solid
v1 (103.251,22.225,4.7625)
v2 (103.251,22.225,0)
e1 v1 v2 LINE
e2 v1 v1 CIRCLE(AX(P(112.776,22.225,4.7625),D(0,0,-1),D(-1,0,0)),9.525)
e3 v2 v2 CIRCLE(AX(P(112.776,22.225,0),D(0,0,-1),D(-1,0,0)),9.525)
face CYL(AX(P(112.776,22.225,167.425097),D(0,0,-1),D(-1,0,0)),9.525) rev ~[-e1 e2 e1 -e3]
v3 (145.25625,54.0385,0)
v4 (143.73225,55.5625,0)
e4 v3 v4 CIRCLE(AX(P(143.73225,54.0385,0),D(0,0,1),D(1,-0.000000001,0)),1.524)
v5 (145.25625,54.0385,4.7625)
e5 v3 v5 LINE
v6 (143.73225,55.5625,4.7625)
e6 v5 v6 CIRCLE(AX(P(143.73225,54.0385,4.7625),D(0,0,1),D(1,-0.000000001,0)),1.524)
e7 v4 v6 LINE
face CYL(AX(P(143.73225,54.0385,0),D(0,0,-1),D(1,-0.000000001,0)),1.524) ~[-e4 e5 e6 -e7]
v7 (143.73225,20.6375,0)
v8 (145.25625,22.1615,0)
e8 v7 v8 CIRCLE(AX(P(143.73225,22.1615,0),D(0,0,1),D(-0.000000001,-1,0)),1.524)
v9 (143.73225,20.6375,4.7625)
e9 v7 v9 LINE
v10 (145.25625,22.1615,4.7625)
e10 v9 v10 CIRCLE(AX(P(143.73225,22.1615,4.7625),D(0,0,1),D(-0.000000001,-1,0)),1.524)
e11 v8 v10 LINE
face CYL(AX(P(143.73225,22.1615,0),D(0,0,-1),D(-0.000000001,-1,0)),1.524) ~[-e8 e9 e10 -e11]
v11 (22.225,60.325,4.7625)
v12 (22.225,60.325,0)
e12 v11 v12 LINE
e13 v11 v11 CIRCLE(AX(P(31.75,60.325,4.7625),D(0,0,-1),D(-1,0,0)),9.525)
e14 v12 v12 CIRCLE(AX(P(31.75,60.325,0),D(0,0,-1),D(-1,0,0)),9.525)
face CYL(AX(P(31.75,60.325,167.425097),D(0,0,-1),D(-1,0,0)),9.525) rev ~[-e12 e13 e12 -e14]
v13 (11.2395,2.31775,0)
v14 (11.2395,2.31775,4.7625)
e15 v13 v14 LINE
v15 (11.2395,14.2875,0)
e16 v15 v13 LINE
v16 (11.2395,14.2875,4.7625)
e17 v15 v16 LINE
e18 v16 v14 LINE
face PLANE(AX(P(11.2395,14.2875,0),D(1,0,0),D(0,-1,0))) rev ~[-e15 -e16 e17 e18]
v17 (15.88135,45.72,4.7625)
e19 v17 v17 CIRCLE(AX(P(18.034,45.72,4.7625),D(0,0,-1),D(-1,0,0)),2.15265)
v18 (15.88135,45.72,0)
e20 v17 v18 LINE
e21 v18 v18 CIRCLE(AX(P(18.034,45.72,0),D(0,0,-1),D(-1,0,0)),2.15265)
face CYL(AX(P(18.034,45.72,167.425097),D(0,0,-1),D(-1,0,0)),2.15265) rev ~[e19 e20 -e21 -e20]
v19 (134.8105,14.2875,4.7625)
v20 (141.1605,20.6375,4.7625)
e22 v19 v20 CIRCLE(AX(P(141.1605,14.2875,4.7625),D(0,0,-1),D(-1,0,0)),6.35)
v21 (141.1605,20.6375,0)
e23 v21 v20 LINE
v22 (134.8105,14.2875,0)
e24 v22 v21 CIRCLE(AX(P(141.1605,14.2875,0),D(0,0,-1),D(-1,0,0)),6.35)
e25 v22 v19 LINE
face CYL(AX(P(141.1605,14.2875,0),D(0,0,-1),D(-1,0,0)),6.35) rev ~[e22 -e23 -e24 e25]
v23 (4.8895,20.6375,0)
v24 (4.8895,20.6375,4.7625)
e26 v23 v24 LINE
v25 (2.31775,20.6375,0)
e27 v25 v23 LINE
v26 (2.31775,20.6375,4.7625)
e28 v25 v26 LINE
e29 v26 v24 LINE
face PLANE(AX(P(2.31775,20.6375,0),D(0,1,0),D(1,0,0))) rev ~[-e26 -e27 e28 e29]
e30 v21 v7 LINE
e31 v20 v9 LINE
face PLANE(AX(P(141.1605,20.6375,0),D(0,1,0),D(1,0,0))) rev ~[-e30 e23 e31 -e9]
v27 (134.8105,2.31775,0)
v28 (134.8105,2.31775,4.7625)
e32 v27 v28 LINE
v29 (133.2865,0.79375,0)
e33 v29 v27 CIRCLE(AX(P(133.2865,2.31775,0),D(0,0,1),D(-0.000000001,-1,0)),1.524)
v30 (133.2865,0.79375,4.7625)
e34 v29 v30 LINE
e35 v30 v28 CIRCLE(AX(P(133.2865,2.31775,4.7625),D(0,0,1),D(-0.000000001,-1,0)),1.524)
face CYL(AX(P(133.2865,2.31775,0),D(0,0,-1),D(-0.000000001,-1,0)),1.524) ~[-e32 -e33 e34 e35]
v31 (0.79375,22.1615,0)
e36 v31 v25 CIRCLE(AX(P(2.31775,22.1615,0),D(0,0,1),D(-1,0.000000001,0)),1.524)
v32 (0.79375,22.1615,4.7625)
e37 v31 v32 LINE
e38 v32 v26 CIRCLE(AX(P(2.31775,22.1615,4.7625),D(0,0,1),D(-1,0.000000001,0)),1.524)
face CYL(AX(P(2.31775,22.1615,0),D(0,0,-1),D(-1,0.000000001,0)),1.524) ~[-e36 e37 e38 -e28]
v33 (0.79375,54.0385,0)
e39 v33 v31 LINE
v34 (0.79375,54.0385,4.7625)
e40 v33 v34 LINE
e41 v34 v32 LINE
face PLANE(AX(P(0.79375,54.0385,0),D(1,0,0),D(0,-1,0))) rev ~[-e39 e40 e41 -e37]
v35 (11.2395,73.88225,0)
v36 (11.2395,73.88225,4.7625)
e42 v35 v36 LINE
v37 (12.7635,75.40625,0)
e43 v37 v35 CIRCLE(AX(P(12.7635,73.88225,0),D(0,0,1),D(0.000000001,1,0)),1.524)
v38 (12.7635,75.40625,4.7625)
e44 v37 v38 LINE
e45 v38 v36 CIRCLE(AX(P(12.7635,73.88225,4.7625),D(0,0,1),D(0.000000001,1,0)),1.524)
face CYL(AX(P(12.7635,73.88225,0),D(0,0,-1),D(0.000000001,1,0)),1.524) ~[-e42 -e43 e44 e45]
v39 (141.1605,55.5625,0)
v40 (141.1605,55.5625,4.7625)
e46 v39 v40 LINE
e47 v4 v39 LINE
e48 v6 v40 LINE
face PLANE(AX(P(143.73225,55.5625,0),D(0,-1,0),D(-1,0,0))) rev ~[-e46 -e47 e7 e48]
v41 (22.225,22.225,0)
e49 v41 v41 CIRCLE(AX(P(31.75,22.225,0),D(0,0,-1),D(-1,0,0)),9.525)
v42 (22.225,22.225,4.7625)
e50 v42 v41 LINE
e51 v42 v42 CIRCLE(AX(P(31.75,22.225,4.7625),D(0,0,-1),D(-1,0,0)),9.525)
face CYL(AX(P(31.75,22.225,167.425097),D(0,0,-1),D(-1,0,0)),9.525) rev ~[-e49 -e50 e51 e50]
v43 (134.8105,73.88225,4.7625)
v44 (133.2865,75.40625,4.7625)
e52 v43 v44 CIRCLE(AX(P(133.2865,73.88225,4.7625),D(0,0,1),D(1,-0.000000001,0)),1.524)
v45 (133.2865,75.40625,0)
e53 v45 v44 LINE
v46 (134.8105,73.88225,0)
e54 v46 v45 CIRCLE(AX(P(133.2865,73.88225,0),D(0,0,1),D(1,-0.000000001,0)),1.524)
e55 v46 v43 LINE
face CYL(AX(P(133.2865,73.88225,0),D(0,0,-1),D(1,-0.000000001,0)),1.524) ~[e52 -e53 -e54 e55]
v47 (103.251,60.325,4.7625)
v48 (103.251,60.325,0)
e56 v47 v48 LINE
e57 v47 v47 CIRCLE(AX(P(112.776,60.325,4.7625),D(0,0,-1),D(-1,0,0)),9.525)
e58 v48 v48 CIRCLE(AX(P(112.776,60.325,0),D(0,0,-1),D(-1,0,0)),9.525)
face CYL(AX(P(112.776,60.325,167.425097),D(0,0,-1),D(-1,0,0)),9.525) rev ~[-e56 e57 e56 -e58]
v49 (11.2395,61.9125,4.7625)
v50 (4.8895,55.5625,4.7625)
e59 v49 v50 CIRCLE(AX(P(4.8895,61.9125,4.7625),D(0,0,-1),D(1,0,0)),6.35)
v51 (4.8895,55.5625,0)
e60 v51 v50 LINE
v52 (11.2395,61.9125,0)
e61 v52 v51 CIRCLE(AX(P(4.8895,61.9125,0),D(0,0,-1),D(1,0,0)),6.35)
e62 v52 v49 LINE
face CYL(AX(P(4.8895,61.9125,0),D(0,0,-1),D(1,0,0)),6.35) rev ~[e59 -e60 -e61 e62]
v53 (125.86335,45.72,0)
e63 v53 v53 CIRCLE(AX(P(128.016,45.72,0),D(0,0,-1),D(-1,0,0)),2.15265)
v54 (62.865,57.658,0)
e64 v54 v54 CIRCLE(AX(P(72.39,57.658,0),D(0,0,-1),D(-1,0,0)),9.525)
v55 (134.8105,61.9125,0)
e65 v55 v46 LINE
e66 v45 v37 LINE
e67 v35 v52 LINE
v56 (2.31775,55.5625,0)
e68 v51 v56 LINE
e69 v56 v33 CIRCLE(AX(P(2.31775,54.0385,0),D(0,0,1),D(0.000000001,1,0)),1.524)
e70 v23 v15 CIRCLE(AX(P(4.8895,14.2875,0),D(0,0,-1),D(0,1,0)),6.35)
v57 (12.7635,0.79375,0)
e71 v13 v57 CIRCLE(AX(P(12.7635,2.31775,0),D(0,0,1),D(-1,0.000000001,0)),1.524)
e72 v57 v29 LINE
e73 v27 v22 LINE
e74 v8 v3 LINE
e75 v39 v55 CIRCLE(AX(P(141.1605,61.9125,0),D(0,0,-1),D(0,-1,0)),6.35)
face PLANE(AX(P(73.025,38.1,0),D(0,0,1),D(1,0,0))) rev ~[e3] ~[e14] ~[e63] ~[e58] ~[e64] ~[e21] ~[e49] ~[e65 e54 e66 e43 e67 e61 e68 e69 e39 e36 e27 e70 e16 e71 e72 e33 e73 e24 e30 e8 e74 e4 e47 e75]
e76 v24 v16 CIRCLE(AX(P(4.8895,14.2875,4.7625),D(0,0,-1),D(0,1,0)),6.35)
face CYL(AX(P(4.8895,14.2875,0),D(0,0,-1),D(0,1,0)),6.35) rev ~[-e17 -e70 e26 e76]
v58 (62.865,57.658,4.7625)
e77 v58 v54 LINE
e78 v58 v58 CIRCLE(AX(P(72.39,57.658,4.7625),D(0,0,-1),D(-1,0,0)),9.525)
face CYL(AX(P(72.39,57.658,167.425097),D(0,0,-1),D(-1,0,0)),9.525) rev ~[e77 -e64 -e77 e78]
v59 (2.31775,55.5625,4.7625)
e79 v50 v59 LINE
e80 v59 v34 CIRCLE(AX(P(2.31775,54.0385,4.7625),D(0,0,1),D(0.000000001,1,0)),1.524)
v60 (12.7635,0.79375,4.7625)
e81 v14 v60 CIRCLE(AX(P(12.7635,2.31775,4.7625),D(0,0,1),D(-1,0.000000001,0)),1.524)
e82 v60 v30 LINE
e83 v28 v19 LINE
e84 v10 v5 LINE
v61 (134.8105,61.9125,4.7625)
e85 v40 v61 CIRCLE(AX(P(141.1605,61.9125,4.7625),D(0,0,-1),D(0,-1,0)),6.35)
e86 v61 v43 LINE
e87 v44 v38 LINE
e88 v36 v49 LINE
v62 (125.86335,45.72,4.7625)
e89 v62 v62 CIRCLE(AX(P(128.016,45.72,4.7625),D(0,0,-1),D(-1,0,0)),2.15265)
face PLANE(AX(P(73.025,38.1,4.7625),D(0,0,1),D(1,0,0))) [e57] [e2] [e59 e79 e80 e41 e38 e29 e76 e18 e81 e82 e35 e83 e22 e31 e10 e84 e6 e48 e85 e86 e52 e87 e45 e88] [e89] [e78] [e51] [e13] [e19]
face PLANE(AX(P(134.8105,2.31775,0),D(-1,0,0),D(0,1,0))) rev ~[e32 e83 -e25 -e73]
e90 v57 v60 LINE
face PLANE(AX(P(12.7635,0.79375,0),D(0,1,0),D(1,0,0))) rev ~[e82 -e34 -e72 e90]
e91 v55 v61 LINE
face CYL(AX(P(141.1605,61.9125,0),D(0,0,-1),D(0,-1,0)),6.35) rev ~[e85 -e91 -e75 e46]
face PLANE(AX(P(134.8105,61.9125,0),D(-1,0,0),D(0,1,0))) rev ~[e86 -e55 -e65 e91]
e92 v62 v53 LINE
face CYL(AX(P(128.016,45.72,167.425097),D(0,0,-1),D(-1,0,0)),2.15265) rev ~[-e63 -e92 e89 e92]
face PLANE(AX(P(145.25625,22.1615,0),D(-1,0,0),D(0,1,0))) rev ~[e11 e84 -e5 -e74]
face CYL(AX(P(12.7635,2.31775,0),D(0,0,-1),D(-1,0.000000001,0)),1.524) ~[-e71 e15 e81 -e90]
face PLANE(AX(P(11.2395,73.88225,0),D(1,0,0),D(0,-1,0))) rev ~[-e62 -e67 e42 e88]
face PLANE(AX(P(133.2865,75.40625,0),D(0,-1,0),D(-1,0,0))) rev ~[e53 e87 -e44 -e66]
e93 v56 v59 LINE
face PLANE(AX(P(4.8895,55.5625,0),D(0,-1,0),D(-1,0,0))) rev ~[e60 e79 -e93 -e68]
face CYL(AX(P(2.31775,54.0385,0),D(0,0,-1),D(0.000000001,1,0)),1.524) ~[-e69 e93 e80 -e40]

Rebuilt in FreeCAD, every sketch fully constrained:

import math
import FreeCAD as App
import Part
import Sketcher
Q = App.Units.Quantity

doc = App.newDocument("Part")
body = doc.addObject("PartDesign::Body", "Body")

sketch1 = body.newObject("Sketcher::SketchObject", "Sketch")
sketch1.AttachmentSupport = (doc.getObject("XY_Plane"), [""])
sketch1.MapMode = "FlatFace"
sketch1.addGeometry([
    Part.LineSegment(App.Vector(134.8, 61.9, 0), App.Vector(134.8, 73.9, 0)),
    Part.ArcOfCircle(Part.Circle(App.Vector(133.3, 73.9, 0), App.Vector(0, 0, 1), 1.5), math.radians(0), math.radians(90)),
    Part.LineSegment(App.Vector(133.3, 75.4, 0), App.Vector(12.8, 75.4, 0)),
    Part.ArcOfCircle(Part.Circle(App.Vector(12.8, 73.9, 0), App.Vector(0, 0, 1), 1.5), math.radians(90), math.radians(180)),
    Part.LineSegment(App.Vector(11.2, 73.9, 0), App.Vector(11.2, 61.9, 0)),
    Part.ArcOfCircle(Part.Circle(App.Vector(4.9, 61.9, 0), App.Vector(0, 0, 1), 6.3), math.radians(-90), math.radians(0)),
    Part.LineSegment(App.Vector(4.9, 55.6, 0), App.Vector(2.3, 55.6, 0)),
    Part.ArcOfCircle(Part.Circle(App.Vector(2.3, 54, 0), App.Vector(0, 0, 1), 1.5), math.radians(90), math.radians(180)),
    Part.LineSegment(App.Vector(0.8, 54, 0), App.Vector(0.8, 22.2, 0)),
    Part.ArcOfCircle(Part.Circle(App.Vector(2.3, 22.2, 0), App.Vector(0, 0, 1), 1.5), math.radians(180), math.radians(270)),
    Part.LineSegment(App.Vector(2.3, 20.6, 0), App.Vector(4.9, 20.6, 0)),
    Part.ArcOfCircle(Part.Circle(App.Vector(4.9, 14.3, 0), App.Vector(0, 0, 1), 6.3), math.radians(0), math.radians(90)),
    Part.LineSegment(App.Vector(11.2, 14.3, 0), App.Vector(11.2, 2.3, 0)),
    Part.ArcOfCircle(Part.Circle(App.Vector(12.8, 2.3, 0), App.Vector(0, 0, 1), 1.5), math.radians(180), math.radians(270)),
    Part.LineSegment(App.Vector(12.8, 0.8, 0), App.Vector(133.3, 0.8, 0)),
    Part.ArcOfCircle(Part.Circle(App.Vector(133.3, 2.3, 0), App.Vector(0, 0, 1), 1.5), math.radians(-90), math.radians(0)),
    Part.LineSegment(App.Vector(134.8, 2.3, 0), App.Vector(134.8, 14.3, 0)),
    Part.ArcOfCircle(Part.Circle(App.Vector(141.2, 14.3, 0), App.Vector(0, 0, 1), 6.3), math.radians(90), math.radians(180)),
    Part.LineSegment(App.Vector(141.2, 20.6, 0), App.Vector(143.7, 20.6, 0)),
    Part.ArcOfCircle(Part.Circle(App.Vector(143.7, 22.2, 0), App.Vector(0, 0, 1), 1.5), math.radians(-90), math.radians(0)),
    Part.LineSegment(App.Vector(145.3, 22.2, 0), App.Vector(145.3, 54, 0)),
    Part.ArcOfCircle(Part.Circle(App.Vector(143.7, 54, 0), App.Vector(0, 0, 1), 1.5), math.radians(0), math.radians(90)),
    Part.LineSegment(App.Vector(143.7, 55.6, 0), App.Vector(141.2, 55.6, 0)),
    Part.ArcOfCircle(Part.Circle(App.Vector(141.2, 61.9, 0), App.Vector(0, 0, 1), 6.3), math.radians(180), math.radians(270)),
], False)
sketch1.addConstraint([
    Sketcher.Constraint("Tangent", 0, 2, 1, 1),
    Sketcher.Constraint("Tangent", 1, 2, 2, 1),
    Sketcher.Constraint("Tangent", 2, 2, 3, 1),
    Sketcher.Constraint("Tangent", 3, 2, 4, 1),
    Sketcher.Constraint("Tangent", 4, 2, 5, 2),
    Sketcher.Constraint("Tangent", 5, 1, 6, 1),
    Sketcher.Constraint("Tangent", 6, 2, 7, 1),
    Sketcher.Constraint("Tangent", 7, 2, 8, 1),
    Sketcher.Constraint("Tangent", 8, 2, 9, 1),
    Sketcher.Constraint("Tangent", 9, 2, 10, 1),
    Sketcher.Constraint("Tangent", 10, 2, 11, 2),
    Sketcher.Constraint("Tangent", 11, 1, 12, 1),
    Sketcher.Constraint("Tangent", 12, 2, 13, 1),
    Sketcher.Constraint("Tangent", 13, 2, 14, 1),
    Sketcher.Constraint("Tangent", 14, 2, 15, 1),
    Sketcher.Constraint("Tangent", 15, 2, 16, 1),
    Sketcher.Constraint("Tangent", 16, 2, 17, 2),
    Sketcher.Constraint("Tangent", 17, 1, 18, 1),
    Sketcher.Constraint("Tangent", 18, 2, 19, 1),
    Sketcher.Constraint("Tangent", 19, 2, 20, 1),
    Sketcher.Constraint("Tangent", 20, 2, 21, 1),
    Sketcher.Constraint("Tangent", 21, 2, 22, 1),
    Sketcher.Constraint("Tangent", 22, 2, 23, 2),
    Sketcher.Constraint("Tangent", 23, 1, 0, 1),
    Sketcher.Constraint("Vertical", 0),
    Sketcher.Constraint("Horizontal", 2),
    Sketcher.Constraint("Vertical", 4),
    Sketcher.Constraint("Horizontal", 6),
    Sketcher.Constraint("Vertical", 8),
    Sketcher.Constraint("Horizontal", 10),
    Sketcher.Constraint("Vertical", 12),
    Sketcher.Constraint("Horizontal", 14),
    Sketcher.Constraint("Vertical", 16),
    Sketcher.Constraint("Horizontal", 18),
    Sketcher.Constraint("Vertical", 20),
    Sketcher.Constraint("Horizontal", 22),
    Sketcher.Constraint("Equal", 1, 3),
    Sketcher.Constraint("Equal", 3, 7),
    Sketcher.Constraint("Equal", 7, 9),
    Sketcher.Constraint("Equal", 5, 11),
    Sketcher.Constraint("Equal", 9, 13),
    Sketcher.Constraint("Equal", 13, 15),
    Sketcher.Constraint("Equal", 11, 17),
    Sketcher.Constraint("Equal", 15, 19),
    Sketcher.Constraint("Equal", 19, 21),
    Sketcher.Constraint("Equal", 17, 23),
    Sketcher.Constraint("Horizontal", 11, 3, 17, 3),
    Sketcher.Constraint("Horizontal", 7, 3, 21, 3),
    Sketcher.Constraint("Vertical", 5, 3, 11, 3),
    Sketcher.Constraint("Vertical", 1, 3, 15, 3),
    Sketcher.Constraint("Equal", 10, 18),
    Sketcher.Constraint("Equal", 4, 12),
    Sketcher.Constraint("Radius", 1, Q("0.06 in")),
    Sketcher.Constraint("Radius", 5, Q("0.25 in")),
    Sketcher.Constraint("DistanceX", 2, 2, 2, 1, Q("4.745 in")),
    Sketcher.Constraint("DistanceY", 8, 2, 8, 1, Q("1.255 in")),
    Sketcher.Constraint("DistanceY", -1, 1, 5, 3, Q("2.4375 in")),
    Sketcher.Constraint("DistanceY", -1, 1, 1, 2, Q("2.96875 in")),
    Sketcher.Constraint("DistanceX", -1, 1, 7, 2, Q("0.03125 in")),
    Sketcher.Constraint("DistanceX", -1, 1, 19, 2, Q("5.71875 in")),
])
pad1 = body.newObject("PartDesign::Pad", "Pad")
pad1.Profile = sketch1
pad1.Length = Q("0.1875 in")

sketch2 = body.newObject("Sketcher::SketchObject", "Sketch001")
sketch2.AttachmentSupport = (doc.getObject("XY_Plane"), [""])
sketch2.MapMode = "FlatFace"
sketch2.AttachmentOffset = App.Placement(App.Vector(0, 0, 0.1875 * 25.4), App.Rotation())
sketch2.addGeometry([
    Part.Circle(App.Vector(32, 60, 0), App.Vector(0, 0, 1), 10),
    Part.Circle(App.Vector(72, 58, 0), App.Vector(0, 0, 1), 10),
    Part.Circle(App.Vector(113, 60, 0), App.Vector(0, 0, 1), 10),
    Part.Circle(App.Vector(113, 22, 0), App.Vector(0, 0, 1), 10),
    Part.Circle(App.Vector(32, 22, 0), App.Vector(0, 0, 1), 10),
], False)
sketch2.addConstraint([
    Sketcher.Constraint("Equal", 0, 1),
    Sketcher.Constraint("Equal", 1, 2),
    Sketcher.Constraint("Equal", 2, 3),
    Sketcher.Constraint("Equal", 3, 4),
    Sketcher.Constraint("Horizontal", 0, 3, 2, 3),
    Sketcher.Constraint("Horizontal", 3, 3, 4, 3),
    Sketcher.Constraint("Vertical", 2, 3, 3, 3),
    Sketcher.Constraint("Vertical", 0, 3, 4, 3),
    Sketcher.Constraint("Diameter", 0, Q("0.75 in")),
    Sketcher.Constraint("DistanceX", 0, 3, 1, 3, Q("1.6 in")),
    Sketcher.Constraint("DistanceY", 3, 3, 2, 3, Q("1.5 in")),
    Sketcher.Constraint("DistanceX", -1, 1, 0, 3, Q("1.25 in")),
    Sketcher.Constraint("DistanceY", -1, 1, 1, 3, Q("2.27 in")),
    Sketcher.Constraint("DistanceX", -1, 1, 2, 3, Q("4.44 in")),
    Sketcher.Constraint("DistanceY", -1, 1, 0, 3, Q("2.375 in")),
])
doc.recompute()
hole = body.newObject("PartDesign::Hole", "Hole")
hole.Profile = sketch2
hole.ThreadType = "None"
hole.Diameter = Q("0.75 in")
hole.DepthType = "ThroughAll"

sketch3 = body.newObject("Sketcher::SketchObject", "Sketch002")
sketch3.AttachmentSupport = (doc.getObject("XY_Plane"), [""])
sketch3.MapMode = "FlatFace"
sketch3.AttachmentOffset = App.Placement(App.Vector(0, 0, 0.1875 * 25.4), App.Rotation())
sketch3.addGeometry([
    Part.Circle(App.Vector(18, 45.7, 0), App.Vector(0, 0, 1), 2.2),
    Part.Circle(App.Vector(128, 45.7, 0), App.Vector(0, 0, 1), 2.2),
], False)
sketch3.addConstraint([
    Sketcher.Constraint("Equal", 0, 1),
    Sketcher.Constraint("Horizontal", 0, 3, 1, 3),
    Sketcher.Constraint("Diameter", 0, Q("0.1695 in")),
    Sketcher.Constraint("DistanceY", -1, 1, 0, 3, Q("1.8 in")),
    Sketcher.Constraint("DistanceX", -1, 1, 0, 3, Q("0.71 in")),
    Sketcher.Constraint("DistanceX", -1, 1, 1, 3, Q("5.04 in")),
])
doc.recompute()
hole2 = body.newObject("PartDesign::Hole", "Hole001")
hole2.Profile = sketch3
hole2.ThreadType = "None"
hole2.Diameter = Q("0.1695 in")
hole2.DepthType = "ThroughAll"

doc.recompute()
